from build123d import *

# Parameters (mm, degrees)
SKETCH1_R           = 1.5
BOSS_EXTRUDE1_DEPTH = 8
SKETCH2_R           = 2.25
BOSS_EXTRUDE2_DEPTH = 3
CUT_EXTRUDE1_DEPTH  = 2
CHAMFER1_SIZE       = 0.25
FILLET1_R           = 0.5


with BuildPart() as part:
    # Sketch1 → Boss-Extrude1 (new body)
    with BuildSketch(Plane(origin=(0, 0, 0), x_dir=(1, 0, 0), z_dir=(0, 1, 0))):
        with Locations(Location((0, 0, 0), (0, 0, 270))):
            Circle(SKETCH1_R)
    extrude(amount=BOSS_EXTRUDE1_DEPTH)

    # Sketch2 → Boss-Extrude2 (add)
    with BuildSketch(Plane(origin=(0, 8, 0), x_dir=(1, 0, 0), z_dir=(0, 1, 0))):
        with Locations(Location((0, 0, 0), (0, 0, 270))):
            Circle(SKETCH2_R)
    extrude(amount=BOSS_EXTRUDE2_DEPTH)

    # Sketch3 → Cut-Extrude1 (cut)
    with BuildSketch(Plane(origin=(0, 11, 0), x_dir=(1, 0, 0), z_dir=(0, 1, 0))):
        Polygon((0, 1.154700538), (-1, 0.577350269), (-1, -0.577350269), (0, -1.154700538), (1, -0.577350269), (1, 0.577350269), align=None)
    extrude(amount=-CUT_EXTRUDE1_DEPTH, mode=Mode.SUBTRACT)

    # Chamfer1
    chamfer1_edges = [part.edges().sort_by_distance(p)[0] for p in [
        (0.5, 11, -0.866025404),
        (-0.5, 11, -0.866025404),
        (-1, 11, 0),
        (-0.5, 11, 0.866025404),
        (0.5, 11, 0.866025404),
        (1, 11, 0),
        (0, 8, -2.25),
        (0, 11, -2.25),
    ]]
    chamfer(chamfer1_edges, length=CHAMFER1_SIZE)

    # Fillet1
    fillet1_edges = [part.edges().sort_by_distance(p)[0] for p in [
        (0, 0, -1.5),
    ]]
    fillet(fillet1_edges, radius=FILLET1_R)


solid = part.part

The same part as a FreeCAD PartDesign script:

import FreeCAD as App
import Part
import Sketcher
from FreeCAD import Vector
Q = App.Units.Quantity


def edges_at(feature, points):
    """Names of the edges that pass closest to the given points."""
    edges = feature.Shape.Edges
    near = lambda p: min(range(len(edges)), key=lambda i: edges[i].distToShape(Part.Vertex(*p))[0])
    return sorted({f"Edge{near(p) + 1}" for p in points})


def add_polygon(sketch, points):
    """Adds a closed chain of lines whose ends are joined by coincident constraints."""
    first, n = sketch.GeometryCount, len(points)
    for a, b in zip(points, points[1:] + points[:1]):
        sketch.addGeometry(Part.LineSegment(App.Vector(*a, 0), App.Vector(*b, 0)), False)
    for i in range(n):
        sketch.addConstraint(Sketcher.Constraint("Coincident", first + i, 2, first + (i + 1) % n, 1))

doc = App.newDocument("Part")
body = doc.addObject("PartDesign::Body", "Body")

# Sketch on XZ plane
sketch1 = doc.addObject("Sketcher::SketchObject", "Sketch")
body.addObject(sketch1)
sketch1.AttachmentSupport = (doc.XZ_Plane, [""])
sketch1.MapMode = "FlatFace"
sketch1.addGeometry(Part.Circle(Vector(0, 0, 0), Vector(0, 0, 1), 1.5), False)
sketch1.addConstraint([
    Sketcher.Constraint("Coincident", 0, 3, -1, 1),
    Sketcher.Constraint("Diameter", 0, Q("3 mm")),
])
pad1 = doc.addObject("PartDesign::Pad", "Pad")
body.addObject(pad1)
pad1.Profile = sketch1
pad1.Length = 8
pad1.Reversed = True

# Sketch on XZ plane
sketch2 = doc.addObject("Sketcher::SketchObject", "Sketch001")
body.addObject(sketch2)
sketch2.AttachmentSupport = (doc.XZ_Plane, [""])
sketch2.MapMode = "FlatFace"
sketch2.AttachmentOffset = App.Placement(Vector(0, 0, -8), App.Rotation())
sketch2.addGeometry(Part.Circle(Vector(0, 0, 0), Vector(0, 0, 1), 2.25), False)
sketch2.addConstraint([
    Sketcher.Constraint("Coincident", 0, 3, -1, 1),
    Sketcher.Constraint("Diameter", 0, Q("4.5 mm")),
])
pad2 = doc.addObject("PartDesign::Pad", "Pad001")
body.addObject(pad2)
pad2.Profile = sketch2
pad2.Length = 3
pad2.Reversed = True

# Sketch on XZ plane
sketch3 = doc.addObject("Sketcher::SketchObject", "Sketch002")
body.addObject(sketch3)
sketch3.AttachmentSupport = (doc.XZ_Plane, [""])
sketch3.MapMode = "FlatFace"
sketch3.AttachmentOffset = App.Placement(Vector(0, 0, -11), App.Rotation())
add_polygon(sketch3, [(0, -1.154701), (-1, -0.57735), (-1, 0.57735), (0, 1.154701), (1, 0.57735), (1, -0.57735)])  # lines 0-5
sketch3.addConstraint([
    Sketcher.Constraint("Vertical", 1),
    Sketcher.Constraint("Vertical", 4),
    Sketcher.Constraint("Symmetric", 0, 2, 3, 2, -1, 1),
    Sketcher.Constraint("Symmetric", 2, 2, 5, 2, -1, 1),
    Sketcher.Constraint("PointOnObject", 2, 2, -2),
    Sketcher.Constraint("Parallel", 2, 5),
    Sketcher.Constraint("Horizontal", 1, 2, 3, 2),
    Sketcher.Constraint("Angle", 0, Q("150 deg")),
    Sketcher.Constraint("DistanceX", 0, 2, -1, 1, Q("1 mm")),
    Sketcher.Constraint("DistanceY", 1, 1, 1, 2, Q("1.154701 mm")),
])
pocket1 = doc.addObject("PartDesign::Pocket", "Pocket")
body.addObject(pocket1)
pocket1.Profile = sketch3
pocket1.Length = 2
pocket1.Reversed = True
doc.recompute()

chamfer = doc.addObject("PartDesign::Chamfer", "Chamfer")
body.addObject(chamfer)
chamfer.Base = (pocket1, edges_at(pocket1, [
    (0.5, 11, -0.866),
    (-0.5, 11, -0.866),
    (-1, 11, 0),
    (-0.5, 11, 0.866),
    (0.5, 11, 0.866),
    (1, 11, 0),
    (0, 8, -2.25),
    (0, 11, -2.25),
]))
chamfer.Size = 0.25
doc.recompute()

fillet = doc.addObject("PartDesign::Fillet", "Fillet")
body.addObject(fillet)
fillet.Base = (chamfer, edges_at(chamfer, [(0, 0, -1.5)]))
fillet.Radius = 0.5

doc.recompute()
